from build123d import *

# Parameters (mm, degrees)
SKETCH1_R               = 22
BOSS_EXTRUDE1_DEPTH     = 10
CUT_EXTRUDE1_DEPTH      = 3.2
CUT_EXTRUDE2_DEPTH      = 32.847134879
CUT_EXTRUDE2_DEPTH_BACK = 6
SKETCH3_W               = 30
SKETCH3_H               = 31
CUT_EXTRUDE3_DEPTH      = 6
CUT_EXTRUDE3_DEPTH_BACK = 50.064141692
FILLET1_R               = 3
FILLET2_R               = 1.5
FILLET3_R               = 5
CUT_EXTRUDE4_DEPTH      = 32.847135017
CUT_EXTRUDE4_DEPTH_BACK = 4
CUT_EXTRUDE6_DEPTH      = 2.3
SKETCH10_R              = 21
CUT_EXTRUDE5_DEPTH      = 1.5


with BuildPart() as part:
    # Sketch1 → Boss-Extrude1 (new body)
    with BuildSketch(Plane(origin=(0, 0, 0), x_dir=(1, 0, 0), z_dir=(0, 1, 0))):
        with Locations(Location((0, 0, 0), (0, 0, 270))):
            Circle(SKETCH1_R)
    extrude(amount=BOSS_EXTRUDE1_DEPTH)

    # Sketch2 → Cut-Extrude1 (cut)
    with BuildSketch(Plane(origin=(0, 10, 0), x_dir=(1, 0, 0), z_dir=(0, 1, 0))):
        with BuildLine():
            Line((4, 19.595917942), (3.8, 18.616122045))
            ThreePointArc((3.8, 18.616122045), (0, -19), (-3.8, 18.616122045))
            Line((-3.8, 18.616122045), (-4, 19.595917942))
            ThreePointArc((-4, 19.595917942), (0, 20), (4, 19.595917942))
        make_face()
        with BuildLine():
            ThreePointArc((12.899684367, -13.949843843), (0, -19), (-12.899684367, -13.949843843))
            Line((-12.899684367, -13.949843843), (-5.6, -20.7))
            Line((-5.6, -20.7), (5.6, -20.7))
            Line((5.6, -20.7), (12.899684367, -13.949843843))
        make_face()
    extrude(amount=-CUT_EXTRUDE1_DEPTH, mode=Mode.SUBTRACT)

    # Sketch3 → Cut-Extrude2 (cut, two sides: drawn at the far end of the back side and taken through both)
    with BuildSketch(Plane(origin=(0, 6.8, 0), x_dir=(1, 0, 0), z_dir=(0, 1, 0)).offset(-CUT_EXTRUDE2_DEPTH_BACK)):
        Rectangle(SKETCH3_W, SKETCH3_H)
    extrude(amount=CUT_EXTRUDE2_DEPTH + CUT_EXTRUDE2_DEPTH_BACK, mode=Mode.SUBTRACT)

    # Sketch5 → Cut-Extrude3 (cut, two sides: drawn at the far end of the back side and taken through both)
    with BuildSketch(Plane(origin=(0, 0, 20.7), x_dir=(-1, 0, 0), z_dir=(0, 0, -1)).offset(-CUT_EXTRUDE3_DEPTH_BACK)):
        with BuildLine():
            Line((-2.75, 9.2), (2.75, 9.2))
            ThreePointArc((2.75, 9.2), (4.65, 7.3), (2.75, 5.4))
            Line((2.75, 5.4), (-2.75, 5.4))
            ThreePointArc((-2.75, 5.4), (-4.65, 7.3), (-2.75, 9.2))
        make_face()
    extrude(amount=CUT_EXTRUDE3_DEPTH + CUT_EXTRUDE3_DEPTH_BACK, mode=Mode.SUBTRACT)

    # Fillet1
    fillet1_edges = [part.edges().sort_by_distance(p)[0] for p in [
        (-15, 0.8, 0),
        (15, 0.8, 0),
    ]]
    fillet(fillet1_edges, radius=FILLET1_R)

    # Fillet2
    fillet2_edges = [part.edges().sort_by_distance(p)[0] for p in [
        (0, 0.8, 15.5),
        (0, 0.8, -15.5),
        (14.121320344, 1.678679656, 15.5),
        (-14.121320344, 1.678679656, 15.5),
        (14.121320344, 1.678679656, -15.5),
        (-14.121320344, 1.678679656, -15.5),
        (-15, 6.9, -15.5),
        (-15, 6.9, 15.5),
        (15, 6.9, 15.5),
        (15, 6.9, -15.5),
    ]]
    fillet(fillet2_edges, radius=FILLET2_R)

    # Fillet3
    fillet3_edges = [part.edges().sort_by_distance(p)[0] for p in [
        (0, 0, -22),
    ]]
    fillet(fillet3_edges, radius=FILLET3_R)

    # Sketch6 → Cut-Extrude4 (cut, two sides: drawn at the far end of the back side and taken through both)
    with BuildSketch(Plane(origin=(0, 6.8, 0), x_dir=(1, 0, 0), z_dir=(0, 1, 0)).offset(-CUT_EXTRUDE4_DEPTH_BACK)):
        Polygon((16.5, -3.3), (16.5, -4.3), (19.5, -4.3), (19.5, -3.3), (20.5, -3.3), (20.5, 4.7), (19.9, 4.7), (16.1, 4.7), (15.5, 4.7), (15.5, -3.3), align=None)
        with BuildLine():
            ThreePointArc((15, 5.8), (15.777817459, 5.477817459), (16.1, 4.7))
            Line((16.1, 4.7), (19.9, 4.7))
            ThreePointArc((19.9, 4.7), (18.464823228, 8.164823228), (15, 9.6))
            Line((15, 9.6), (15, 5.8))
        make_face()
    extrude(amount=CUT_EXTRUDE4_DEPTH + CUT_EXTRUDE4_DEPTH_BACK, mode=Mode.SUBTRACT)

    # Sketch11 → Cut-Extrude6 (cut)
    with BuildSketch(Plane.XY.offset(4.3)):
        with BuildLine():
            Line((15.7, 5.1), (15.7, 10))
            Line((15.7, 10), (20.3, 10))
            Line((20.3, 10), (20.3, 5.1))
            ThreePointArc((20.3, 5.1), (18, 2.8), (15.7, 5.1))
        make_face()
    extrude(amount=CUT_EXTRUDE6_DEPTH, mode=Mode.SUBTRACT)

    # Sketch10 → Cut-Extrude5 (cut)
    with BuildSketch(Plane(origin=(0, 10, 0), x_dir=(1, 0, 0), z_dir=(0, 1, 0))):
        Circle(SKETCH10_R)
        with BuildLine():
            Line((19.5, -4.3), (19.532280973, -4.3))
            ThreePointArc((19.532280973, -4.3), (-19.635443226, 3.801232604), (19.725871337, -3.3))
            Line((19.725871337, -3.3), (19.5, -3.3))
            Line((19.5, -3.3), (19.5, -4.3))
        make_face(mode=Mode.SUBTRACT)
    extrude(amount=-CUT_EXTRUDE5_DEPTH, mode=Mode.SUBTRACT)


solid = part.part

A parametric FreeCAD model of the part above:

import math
import FreeCAD as App
import Part
import Sketcher

V = App.Vector
Q = App.Units.Quantity


def edges_at(feature, points):
    """Names of the edges that pass closest to the given points."""
    edges = feature.Shape.Edges
    near = lambda p: min(range(len(edges)), key=lambda i: edges[i].distToShape(Part.Vertex(*p))[0])
    return sorted({f"Edge{near(p) + 1}" for p in points})

doc = App.newDocument("Part")
body = doc.addObject("PartDesign::Body", "Body")

# Sketch on XZ plane
sketch1 = body.newObject("Sketcher::SketchObject", "Sketch")
sketch1.AttachmentSupport = (doc.getObject("XZ_Plane"), [""])
sketch1.MapMode = "FlatFace"
sketch1.addGeometry(Part.Circle(V(0, 0, 0), V(0, 0, 1), 22), False)
sketch1.addConstraint([
    Sketcher.Constraint("Coincident", 0, 3, -1, 1),
    Sketcher.Constraint("Diameter", 0, Q("44 mm")),
])
pad1 = body.newObject("PartDesign::Pad", "Pad")
pad1.Profile = sketch1
pad1.Length = 10
pad1.Reversed = True

# Sketch on XZ plane
sketch2 = body.newObject("Sketcher::SketchObject", "Sketch001")
sketch2.AttachmentSupport = (doc.getObject("XZ_Plane"), [""])
sketch2.MapMode = "FlatFace"
sketch2.AttachmentOffset = App.Placement(V(0, 0, -10), App.Rotation())
sketch2.addGeometry([
    Part.LineSegment(V(3.8, -18.6, 0), V(4, -19.6, 0)),  # 0
    Part.ArcOfCircle(Part.Circle(V(0, 0, 0), V(0, 0, 1), 20), math.radians(-102), math.radians(-78)),  # 1
    Part.LineSegment(V(-4, -19.6, 0), V(-3.8, -18.6, 0)),  # 2
    Part.ArcOfCircle(Part.Circle(V(0, 0, 0), V(0, 0, 1), 19), math.radians(133), math.radians(258)),  # 3
    Part.LineSegment(V(-12.9, 13.9, 0), V(-5.6, 20.7, 0)),  # 4
    Part.LineSegment(V(-5.6, 20.7, 0), V(5.6, 20.7, 0)),  # 5
    Part.LineSegment(V(5.6, 20.7, 0), V(12.9, 13.9, 0)),  # 6
    Part.ArcOfCircle(Part.Circle(V(0, 0, 0), V(0, 0, 1), 19), math.radians(-78), math.radians(47)),  # 7
], False)
sketch2.addConstraint([
    Sketcher.Constraint("Coincident", 0, 2, 1, 2),
    Sketcher.Constraint("Coincident", 1, 1, 2, 1),
    Sketcher.Constraint("Coincident", 2, 2, 3, 2),
    Sketcher.Constraint("Tangent", 3, 1, 4, 1),
    Sketcher.Constraint("Coincident", 4, 2, 5, 1),
    Sketcher.Constraint("Coincident", 5, 2, 6, 1),
    Sketcher.Constraint("Tangent", 6, 2, 7, 2),
    Sketcher.Constraint("Coincident", 7, 1, 0, 1),
    Sketcher.Constraint("Horizontal", 5),
    Sketcher.Constraint("Coincident", 1, 3, -1, 1),
    Sketcher.Constraint("Coincident", 3, 3, -1, 1),
    Sketcher.Constraint("Coincident", 7, 3, -1, 1),
    Sketcher.Constraint("Equal", 3, 7),
    Sketcher.Constraint("Horizontal", 0, 2, 1, 1),
    Sketcher.Constraint("Horizontal", 3, 1, 6, 2),
    Sketcher.Constraint("Horizontal", 2, 2, 7, 1),
    Sketcher.Constraint("Radius", 1, Q("20 mm")),
    Sketcher.Constraint("Radius", 3, Q("19 mm")),
    Sketcher.Constraint("DistanceX", 5, 1, 5, 2, Q("11.2 mm")),
    Sketcher.Constraint("DistanceX", -1, 1, 0, 2, Q("4 mm")),
    Sketcher.Constraint("DistanceX", 2, 2, -1, 1, Q("3.8 mm")),
    Sketcher.Constraint("DistanceY", -1, 1, 4, 2, Q("20.7 mm")),
])
pocket1 = body.newObject("PartDesign::Pocket", "Pocket")
pocket1.Profile = sketch2
pocket1.Length = 3.2
pocket1.Reversed = True

# Sketch on XZ plane
sketch3 = body.newObject("Sketcher::SketchObject", "Sketch002")
sketch3.AttachmentSupport = (doc.getObject("XZ_Plane"), [""])
sketch3.MapMode = "FlatFace"
sketch3.AttachmentOffset = App.Placement(V(0, 0, -6.8), App.Rotation())
sketch3.addGeometry([
    Part.LineSegment(V(-15, -16, 0), V(-15, 16, 0)),
    Part.LineSegment(V(-15, 16, 0), V(15, 16, 0)),
    Part.LineSegment(V(15, 16, 0), V(15, -16, 0)),
    Part.LineSegment(V(15, -16, 0), V(-15, -16, 0)),
], False)
sketch3.addConstraint([
    Sketcher.Constraint("Coincident", 0, 2, 1, 1),
    Sketcher.Constraint("Coincident", 1, 2, 2, 1),
    Sketcher.Constraint("Coincident", 2, 2, 3, 1),
    Sketcher.Constraint("Coincident", 3, 2, 0, 1),
    Sketcher.Constraint("Vertical", 0),
    Sketcher.Constraint("Horizontal", 1),
    Sketcher.Constraint("Vertical", 2),
    Sketcher.Constraint("Horizontal", 3),
    Sketcher.Constraint("Symmetric", 0, 2, 2, 2, -1, 1),
    Sketcher.Constraint("DistanceX", 1, 1, 1, 2, Q("30 mm")),
    Sketcher.Constraint("DistanceY", 0, 1, 0, 2, Q("31 mm")),
])
pocket2 = body.newObject("PartDesign::Pocket", "Pocket001")
pocket2.Profile = sketch3
pocket2.Type = "TwoLengths"
pocket2.Length = 32.847135
pocket2.Length2 = 6

# Sketch on XY plane
sketch4 = body.newObject("Sketcher::SketchObject", "Sketch003")
sketch4.AttachmentSupport = (doc.getObject("XY_Plane"), [""])
sketch4.MapMode = "FlatFace"
sketch4.AttachmentOffset = App.Placement(V(0, 0, 20.7), App.Rotation())
sketch4.addGeometry([
    Part.LineSegment(V(-2.8, 9.2, 0), V(2.8, 9.2, 0)),
    Part.ArcOfCircle(Part.Circle(V(2.8, 7.3, 0), V(0, 0, 1), 1.9), math.radians(-90), math.radians(90)),
    Part.LineSegment(V(2.8, 5.4, 0), V(-2.8, 5.4, 0)),
    Part.ArcOfCircle(Part.Circle(V(-2.8, 7.3, 0), V(0, 0, 1), 1.9), math.radians(90), math.radians(270)),
], False)
sketch4.addConstraint([
    Sketcher.Constraint("Tangent", 0, 2, 1, 2),
    Sketcher.Constraint("Tangent", 1, 1, 2, 1),
    Sketcher.Constraint("Tangent", 2, 2, 3, 2),
    Sketcher.Constraint("Tangent", 3, 1, 0, 1),
    Sketcher.Constraint("Horizontal", 0),
    Sketcher.Constraint("Horizontal", 2),
    Sketcher.Constraint("Radius", 1, Q("1.9 mm")),
    Sketcher.Constraint("DistanceX", 0, 1, 0, 2, Q("5.5 mm")),
    Sketcher.Constraint("DistanceY", -1, 1, 1, 3, Q("7.3 mm")),
    Sketcher.Constraint("DistanceX", -1, 1, 1, 3, Q("2.75 mm")),
])
pocket3 = body.newObject("PartDesign::Pocket", "Pocket002")
pocket3.Profile = sketch4
pocket3.Type = "TwoLengths"
pocket3.Length = 6
pocket3.Length2 = 50.064142
doc.recompute()

fillet = body.newObject("PartDesign::Fillet", "Fillet")
fillet.Base = (pocket3, edges_at(pocket3, [(-15, 0.8, 0), (15, 0.8, 0)]))
fillet.Radius = 3
doc.recompute()

fillet2 = body.newObject("PartDesign::Fillet", "Fillet001")
fillet2.Base = (fillet, edges_at(fillet, [
    (0, 0.8, 15.5),
    (0, 0.8, -15.5),
    (14.121, 1.679, 15.5),
    (-14.121, 1.679, 15.5),
    (14.121, 1.679, -15.5),
    (-14.121, 1.679, -15.5),
    (-15, 6.9, -15.5),
    (-15, 6.9, 15.5),
    (15, 6.9, 15.5),
    (15, 6.9, -15.5),
]))
fillet2.Radius = 1.5
doc.recompute()

fillet3 = body.newObject("PartDesign::Fillet", "Fillet002")
fillet3.Base = (fillet2, edges_at(fillet2, [(0, 0, -22)]))
fillet3.Radius = 5

# Sketch on XZ plane
sketch5 = body.newObject("Sketcher::SketchObject", "Sketch004")
sketch5.AttachmentSupport = (doc.getObject("XZ_Plane"), [""])
sketch5.MapMode = "FlatFace"
sketch5.AttachmentOffset = App.Placement(V(0, 0, -6.8), App.Rotation())
sketch5.addGeometry([
    Part.LineSegment(V(16.5, 3.3, 0), V(16.5, 4.3, 0)),  # 0
    Part.LineSegment(V(16.5, 4.3, 0), V(19.5, 4.3, 0)),  # 1
    Part.LineSegment(V(19.5, 4.3, 0), V(19.5, 3.3, 0)),  # 2
    Part.LineSegment(V(19.5, 3.3, 0), V(20.5, 3.3, 0)),  # 3
    Part.LineSegment(V(20.5, 3.3, 0), V(20.5, -4.7, 0)),  # 4
    Part.LineSegment(V(20.5, -4.7, 0), V(19.9, -4.7, 0)),  # 5
    Part.ArcOfCircle(Part.Circle(V(15, -4.7, 0), V(0, 0, 1), 4.9), math.radians(-90), math.radians(0)),  # 6
    Part.LineSegment(V(15, -9.6, 0), V(15, -5.8, 0)),  # 7
    Part.ArcOfCircle(Part.Circle(V(15, -4.7, 0), V(0, 0, 1), 1.1), math.radians(-90), math.radians(0)),  # 8
    Part.LineSegment(V(16.1, -4.7, 0), V(15.5, -4.7, 0)),  # 9
    Part.LineSegment(V(15.5, -4.7, 0), V(15.5, 3.3, 0)),  # 10
    Part.LineSegment(V(15.5, 3.3, 0), V(16.5, 3.3, 0)),  # 11
], False)
sketch5.addConstraint([
    Sketcher.Constraint("Coincident", 0, 2, 1, 1),
    Sketcher.Constraint("Coincident", 1, 2, 2, 1),
    Sketcher.Constraint("Coincident", 2, 2, 3, 1),
    Sketcher.Constraint("Coincident", 3, 2, 4, 1),
    Sketcher.Constraint("Coincident", 4, 2, 5, 1),
    Sketcher.Constraint("Coincident", 5, 2, 6, 2),
    Sketcher.Constraint("Coincident", 6, 1, 7, 1),
    Sketcher.Constraint("Coincident", 7, 2, 8, 1),
    Sketcher.Constraint("Coincident", 8, 2, 9, 1),
    Sketcher.Constraint("Coincident", 9, 2, 10, 1),
    Sketcher.Constraint("Coincident", 10, 2, 11, 1),
    Sketcher.Constraint("Coincident", 11, 2, 0, 1),
    Sketcher.Constraint("Vertical", 0),
    Sketcher.Constraint("Horizontal", 1),
    Sketcher.Constraint("Vertical", 2),
    Sketcher.Constraint("Horizontal", 3),
    Sketcher.Constraint("Vertical", 4),
    Sketcher.Constraint("Horizontal", 5),
    Sketcher.Constraint("Vertical", 7),
    Sketcher.Constraint("Horizontal", 9),
    Sketcher.Constraint("Vertical", 10),
    Sketcher.Constraint("Horizontal", 11),
    Sketcher.Constraint("Coincident", 8, 3, 6, 3),
    Sketcher.Constraint("Horizontal", 8, 3, 4, 2),
    Sketcher.Constraint("Horizontal", 5, 2, 8, 2),
    Sketcher.Constraint("Horizontal", 3, 2, 10, 2),
    Sketcher.Constraint("Vertical", 8, 3, 6, 1),
    Sketcher.Constraint("Equal", 5, 9),
    Sketcher.Constraint("Equal", 3, 11),
    Sketcher.Constraint("Equal", 11, 0),
    Sketcher.Constraint("Radius", 6, Q("4.9 mm")),
    Sketcher.Constraint("Radius", 8, Q("1.1 mm")),
    Sketcher.Constraint("DistanceX", 1, 1, 1, 2, Q("3 mm")),
    Sketcher.Constraint("DistanceX", 3, 1, 3, 2, Q("1 mm")),
    Sketcher.Constraint("DistanceY", 4, 2, 4, 1, Q("8 mm")),
    Sketcher.Constraint("DistanceX", -1, 1, 6, 3, Q("15 mm")),
    Sketcher.Constraint("DistanceY", 6, 3, -1, 1, Q("4.7 mm")),
])
pocket4 = body.newObject("PartDesign::Pocket", "Pocket003")
pocket4.Profile = sketch5
pocket4.Type = "TwoLengths"
pocket4.Length = 32.847135
pocket4.Length2 = 4

# Sketch on XY plane
sketch6 = body.newObject("Sketcher::SketchObject", "Sketch005")
sketch6.AttachmentSupport = (doc.getObject("XY_Plane"), [""])
sketch6.MapMode = "FlatFace"
sketch6.AttachmentOffset = App.Placement(V(0, 0, 4.3), App.Rotation())
sketch6.addGeometry([
    Part.LineSegment(V(15.7, 10, 0), V(15.7, 5.1, 0)),
    Part.ArcOfCircle(Part.Circle(V(18, 5.1, 0), V(0, 0, 1), 2.3), math.radians(180), math.radians(360)),
    Part.LineSegment(V(20.3, 5.1, 0), V(20.3, 10, 0)),
    Part.LineSegment(V(20.3, 10, 0), V(15.7, 10, 0)),
], False)
sketch6.addConstraint([
    Sketcher.Constraint("Tangent", 0, 2, 1, 1),
    Sketcher.Constraint("Tangent", 1, 2, 2, 1),
    Sketcher.Constraint("Coincident", 2, 2, 3, 1),
    Sketcher.Constraint("Coincident", 3, 2, 0, 1),
    Sketcher.Constraint("Vertical", 0),
    Sketcher.Constraint("Vertical", 2),
    Sketcher.Constraint("Horizontal", 3),
    Sketcher.Constraint("Radius", 1, Q("2.3 mm")),
    Sketcher.Constraint("DistanceY", 0, 2, 0, 1, Q("4.9 mm")),
    Sketcher.Constraint("DistanceX", -1, 1, 1, 3, Q("18 mm")),
    Sketcher.Constraint("DistanceY", -1, 1, 2, 2, Q("10 mm")),
])
pocket5 = body.newObject("PartDesign::Pocket", "Pocket004")
pocket5.Profile = sketch6
pocket5.Length = 2.3
pocket5.Reversed = True

# Sketch on XZ plane
sketch7 = body.newObject("Sketcher::SketchObject", "Sketch006")
sketch7.AttachmentSupport = (doc.getObject("XZ_Plane"), [""])
sketch7.MapMode = "FlatFace"
sketch7.AttachmentOffset = App.Placement(V(0, 0, -10), App.Rotation())
sketch7.addGeometry([
    Part.Circle(V(0, 0, 0), V(0, 0, 1), 21),  # 0
    Part.LineSegment(V(19.5, 3.3, 0), V(19.5, 4.3, 0)),  # 1
    Part.LineSegment(V(19.5, 4.3, 0), V(19.532, 4.3, 0)),  # 2
    Part.ArcOfCircle(Part.Circle(V(0, 0, 0), V(0, 0, 1), 20), math.radians(12), math.radians(369)),  # 3
    Part.LineSegment(V(19.726, 3.3, 0), V(19.5, 3.3, 0)),  # 4
], False)
sketch7.addConstraint([
    Sketcher.Constraint("Coincident", 1, 2, 2, 1),
    Sketcher.Constraint("Coincident", 2, 2, 3, 1),
    Sketcher.Constraint("Coincident", 3, 2, 4, 1),
    Sketcher.Constraint("Coincident", 4, 2, 1, 1),
    Sketcher.Constraint("Vertical", 1),
    Sketcher.Constraint("Horizontal", 2),
    Sketcher.Constraint("Horizontal", 4),
    Sketcher.Constraint("Coincident", 0, 3, -1, 1),
    Sketcher.Constraint("Coincident", 3, 3, -1, 1),
    Sketcher.Constraint("Diameter", 0, Q("42 mm")),
    Sketcher.Constraint("Radius", 3, Q("20 mm")),
    Sketcher.Constraint("DistanceY", 1, 1, 1, 2, Q("1 mm")),
    Sketcher.Constraint("DistanceX", -1, 1, 1, 2, Q("19.5 mm")),
    Sketcher.Constraint("DistanceY", -1, 1, 1, 2, Q("4.3 mm")),
])
pocket6 = body.newObject("PartDesign::Pocket", "Pocket005")
pocket6.Profile = sketch7
pocket6.Length = 1.5
pocket6.Reversed = True

doc.recompute()
